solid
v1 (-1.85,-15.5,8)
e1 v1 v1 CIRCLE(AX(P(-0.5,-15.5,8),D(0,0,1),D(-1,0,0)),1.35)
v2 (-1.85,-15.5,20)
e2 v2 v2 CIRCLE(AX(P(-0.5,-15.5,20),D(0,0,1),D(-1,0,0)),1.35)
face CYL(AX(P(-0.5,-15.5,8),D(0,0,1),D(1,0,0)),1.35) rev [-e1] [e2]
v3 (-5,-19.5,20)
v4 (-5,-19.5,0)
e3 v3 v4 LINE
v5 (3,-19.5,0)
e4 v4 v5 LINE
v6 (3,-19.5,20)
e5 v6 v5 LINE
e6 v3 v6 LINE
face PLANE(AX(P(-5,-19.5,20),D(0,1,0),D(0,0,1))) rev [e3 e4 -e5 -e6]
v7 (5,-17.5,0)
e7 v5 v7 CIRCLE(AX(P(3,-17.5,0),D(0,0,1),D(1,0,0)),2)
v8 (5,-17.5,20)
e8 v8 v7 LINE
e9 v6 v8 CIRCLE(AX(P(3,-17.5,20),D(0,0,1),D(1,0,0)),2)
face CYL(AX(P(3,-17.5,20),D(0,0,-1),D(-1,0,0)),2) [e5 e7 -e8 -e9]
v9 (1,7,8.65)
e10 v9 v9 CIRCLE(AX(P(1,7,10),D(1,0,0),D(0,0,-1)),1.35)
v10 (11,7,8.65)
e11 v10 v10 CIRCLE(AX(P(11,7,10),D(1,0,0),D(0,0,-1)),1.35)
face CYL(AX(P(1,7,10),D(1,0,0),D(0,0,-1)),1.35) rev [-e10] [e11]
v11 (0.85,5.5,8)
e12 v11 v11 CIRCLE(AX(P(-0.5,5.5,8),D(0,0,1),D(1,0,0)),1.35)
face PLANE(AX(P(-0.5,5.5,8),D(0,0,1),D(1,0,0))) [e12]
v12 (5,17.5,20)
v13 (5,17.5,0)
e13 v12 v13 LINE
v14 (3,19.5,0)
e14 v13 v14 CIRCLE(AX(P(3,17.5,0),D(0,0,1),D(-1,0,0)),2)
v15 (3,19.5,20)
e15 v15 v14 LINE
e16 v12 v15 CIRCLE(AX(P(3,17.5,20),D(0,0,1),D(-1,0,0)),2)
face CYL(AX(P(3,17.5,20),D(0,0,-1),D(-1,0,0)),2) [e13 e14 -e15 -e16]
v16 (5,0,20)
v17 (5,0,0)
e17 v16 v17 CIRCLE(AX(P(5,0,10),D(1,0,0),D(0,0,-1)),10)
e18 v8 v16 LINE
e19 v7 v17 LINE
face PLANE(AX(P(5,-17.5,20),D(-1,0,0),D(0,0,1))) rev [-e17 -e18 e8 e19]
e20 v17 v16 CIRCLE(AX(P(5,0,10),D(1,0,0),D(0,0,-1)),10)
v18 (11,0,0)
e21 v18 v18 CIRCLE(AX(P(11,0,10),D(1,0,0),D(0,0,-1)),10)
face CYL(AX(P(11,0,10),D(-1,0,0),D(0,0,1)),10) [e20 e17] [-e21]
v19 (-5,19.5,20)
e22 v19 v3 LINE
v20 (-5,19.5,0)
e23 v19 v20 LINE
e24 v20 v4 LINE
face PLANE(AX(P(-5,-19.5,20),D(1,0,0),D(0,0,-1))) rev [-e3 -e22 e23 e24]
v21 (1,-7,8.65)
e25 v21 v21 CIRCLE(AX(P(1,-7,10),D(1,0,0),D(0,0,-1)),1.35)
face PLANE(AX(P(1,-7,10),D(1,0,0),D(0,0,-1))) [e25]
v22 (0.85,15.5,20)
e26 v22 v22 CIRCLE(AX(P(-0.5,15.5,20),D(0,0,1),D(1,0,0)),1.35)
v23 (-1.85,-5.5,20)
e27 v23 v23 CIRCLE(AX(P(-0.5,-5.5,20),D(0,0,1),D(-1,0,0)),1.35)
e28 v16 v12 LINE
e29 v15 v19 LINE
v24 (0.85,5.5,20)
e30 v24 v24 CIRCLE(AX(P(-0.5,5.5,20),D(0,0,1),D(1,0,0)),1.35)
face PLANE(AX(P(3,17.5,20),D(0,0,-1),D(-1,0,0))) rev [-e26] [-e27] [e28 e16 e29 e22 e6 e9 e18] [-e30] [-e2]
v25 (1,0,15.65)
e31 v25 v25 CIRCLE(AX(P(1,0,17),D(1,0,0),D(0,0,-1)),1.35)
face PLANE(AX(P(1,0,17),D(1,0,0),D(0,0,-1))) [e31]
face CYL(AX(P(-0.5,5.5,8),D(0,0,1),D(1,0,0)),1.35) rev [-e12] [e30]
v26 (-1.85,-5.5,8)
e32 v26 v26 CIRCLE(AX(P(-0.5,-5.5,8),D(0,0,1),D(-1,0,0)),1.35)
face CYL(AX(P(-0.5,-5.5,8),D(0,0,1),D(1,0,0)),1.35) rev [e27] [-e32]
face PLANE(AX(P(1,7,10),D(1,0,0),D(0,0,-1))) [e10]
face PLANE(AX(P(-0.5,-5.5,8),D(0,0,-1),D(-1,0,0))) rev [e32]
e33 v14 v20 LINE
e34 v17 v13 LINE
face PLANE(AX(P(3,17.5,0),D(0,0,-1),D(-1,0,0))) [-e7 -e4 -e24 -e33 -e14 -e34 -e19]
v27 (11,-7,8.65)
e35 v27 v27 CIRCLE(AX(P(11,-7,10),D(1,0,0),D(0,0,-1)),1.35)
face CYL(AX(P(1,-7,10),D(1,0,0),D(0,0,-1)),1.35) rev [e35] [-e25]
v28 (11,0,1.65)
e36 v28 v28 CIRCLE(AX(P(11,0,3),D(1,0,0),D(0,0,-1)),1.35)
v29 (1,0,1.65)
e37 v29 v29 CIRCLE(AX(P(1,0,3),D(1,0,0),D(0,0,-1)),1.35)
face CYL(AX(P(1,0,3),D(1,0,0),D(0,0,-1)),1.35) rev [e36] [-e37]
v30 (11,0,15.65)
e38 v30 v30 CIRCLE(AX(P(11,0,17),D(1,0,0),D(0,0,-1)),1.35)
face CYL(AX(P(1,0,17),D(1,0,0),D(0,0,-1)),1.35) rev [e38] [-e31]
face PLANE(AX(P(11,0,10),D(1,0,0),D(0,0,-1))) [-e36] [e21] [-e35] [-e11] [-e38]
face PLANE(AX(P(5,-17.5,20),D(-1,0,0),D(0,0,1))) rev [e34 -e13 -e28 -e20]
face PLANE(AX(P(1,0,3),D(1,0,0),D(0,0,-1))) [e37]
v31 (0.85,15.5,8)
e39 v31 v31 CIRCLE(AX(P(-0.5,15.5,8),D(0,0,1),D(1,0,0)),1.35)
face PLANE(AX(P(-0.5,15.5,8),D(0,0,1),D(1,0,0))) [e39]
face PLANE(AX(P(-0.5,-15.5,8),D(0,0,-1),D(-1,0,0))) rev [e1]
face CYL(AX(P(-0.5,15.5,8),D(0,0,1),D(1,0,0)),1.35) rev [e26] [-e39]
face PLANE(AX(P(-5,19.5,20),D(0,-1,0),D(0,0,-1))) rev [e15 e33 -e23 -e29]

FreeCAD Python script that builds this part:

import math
import FreeCAD as App
import Part
import Sketcher
from FreeCAD import Vector
Q = App.Units.Quantity

doc = App.newDocument("Part")
body = doc.addObject("PartDesign::Body", "Body")

sketch1 = body.newObject("Sketcher::SketchObject", "Sketch")
sketch1.AttachmentSupport = (doc.getObject("XY_Plane"), [""])
sketch1.MapMode = "FlatFace"
sketch1.addGeometry(Part.LineSegment(Vector(-5, -19.5, 0), Vector(3, -19.5, 0)), False)
sketch1.addGeometry(Part.ArcOfCircle(Part.Circle(Vector(3, -17.5, 0), Vector(0, 0, 1), 2), math.radians(-90), math.radians(0)), False)
sketch1.addGeometry(Part.LineSegment(Vector(5, -17.5, 0), Vector(5, 17.5, 0)), False)
sketch1.addGeometry(Part.ArcOfCircle(Part.Circle(Vector(3, 17.5, 0), Vector(0, 0, 1), 2), math.radians(0), math.radians(90)), False)
sketch1.addGeometry(Part.LineSegment(Vector(3, 19.5, 0), Vector(-5, 19.5, 0)), False)
sketch1.addGeometry(Part.LineSegment(Vector(-5, 19.5, 0), Vector(-5, -19.5, 0)), False)
sketch1.addConstraint(Sketcher.Constraint("Tangent", 0, 2, 1, 1))
sketch1.addConstraint(Sketcher.Constraint("Tangent", 1, 2, 2, 1))
sketch1.addConstraint(Sketcher.Constraint("Tangent", 2, 2, 3, 1))
sketch1.addConstraint(Sketcher.Constraint("Tangent", 3, 2, 4, 1))
sketch1.addConstraint(Sketcher.Constraint("Coincident", 4, 2, 5, 1))
sketch1.addConstraint(Sketcher.Constraint("Coincident", 5, 2, 0, 1))
sketch1.addConstraint(Sketcher.Constraint("Horizontal", 0))
sketch1.addConstraint(Sketcher.Constraint("Vertical", 2))
sketch1.addConstraint(Sketcher.Constraint("Horizontal", 4))
sketch1.addConstraint(Sketcher.Constraint("Vertical", 5))
sketch1.addConstraint(Sketcher.Constraint("Equal", 1, 3))
sketch1.addConstraint(Sketcher.Constraint("Radius", 1, Q("2 mm")))
sketch1.addConstraint(Sketcher.Constraint("DistanceX", 0, 1, 0, 2, Q("8 mm")))
sketch1.addConstraint(Sketcher.Constraint("DistanceY", 2, 1, 2, 2, Q("35 mm")))
sketch1.addConstraint(Sketcher.Constraint("DistanceX", -1, 1, 1, 3, Q("3 mm")))
sketch1.addConstraint(Sketcher.Constraint("DistanceY", 1, 3, -1, 1, Q("17.5 mm")))
pad1 = body.newObject("PartDesign::Pad", "Pad")
pad1.Profile = sketch1
pad1.Length = 20

sketch2 = body.newObject("Sketcher::SketchObject", "Sketch001")
sketch2.AttachmentSupport = (doc.getObject("XY_Plane"), [""])
sketch2.MapMode = "FlatFace"
sketch2.AttachmentOffset = App.Placement(Vector(0, 0, 20), App.Rotation())
sketch2.addGeometry(Part.Circle(Vector(-0.5, 15.5, 0), Vector(0, 0, 1), 1.4), False)
sketch2.addGeometry(Part.Circle(Vector(-0.5, 5.5, 0), Vector(0, 0, 1), 1.4), False)
sketch2.addGeometry(Part.Circle(Vector(-0.5, -15.5, 0), Vector(0, 0, 1), 1.4), False)
sketch2.addGeometry(Part.Circle(Vector(-0.5, -5.5, 0), Vector(0, 0, 1), 1.4), False)
sketch2.addConstraint(Sketcher.Constraint("Equal", 0, 1))
sketch2.addConstraint(Sketcher.Constraint("Equal", 1, 2))
sketch2.addConstraint(Sketcher.Constraint("Equal", 2, 3))
sketch2.addConstraint(Sketcher.Constraint("Symmetric", 0, 3, 2, 3, -1))
sketch2.addConstraint(Sketcher.Constraint("Symmetric", 1, 3, 3, 3, -1))
sketch2.addConstraint(Sketcher.Constraint("Vertical", 0, 3, 1, 3))
sketch2.addConstraint(Sketcher.Constraint("Diameter", 0, Q("2.7 mm")))
sketch2.addConstraint(Sketcher.Constraint("DistanceY", 1, 3, 0, 3, Q("10 mm")))
sketch2.addConstraint(Sketcher.Constraint("DistanceY", 2, 3, 1, 3, Q("21 mm")))
sketch2.addConstraint(Sketcher.Constraint("DistanceX", 0, 3, -1, 1, Q("0.5 mm")))
pocket1 = body.newObject("PartDesign::Pocket", "Pocket")
pocket1.Profile = sketch2
pocket1.Length = 12

sketch3 = body.newObject("Sketcher::SketchObject", "Sketch002")
sketch3.AttachmentSupport = (doc.getObject("YZ_Plane"), [""])
sketch3.MapMode = "FlatFace"
sketch3.AttachmentOffset = App.Placement(Vector(0, 0, 5), App.Rotation())
sketch3.addGeometry(Part.Circle(Vector(0, 10, 0), Vector(0, 0, 1), 10), False)
sketch3.addConstraint(Sketcher.Constraint("PointOnObject", 0, 3, -2))
sketch3.addConstraint(Sketcher.Constraint("Diameter", 0, Q("20 mm")))
sketch3.addConstraint(Sketcher.Constraint("DistanceY", -1, 1, 0, 3, Q("10 mm")))
pad2 = body.newObject("PartDesign::Pad", "Pad001")
pad2.Profile = sketch3
pad2.Length = 6

sketch4 = body.newObject("Sketcher::SketchObject", "Sketch003")
sketch4.AttachmentSupport = (doc.getObject("YZ_Plane"), [""])
sketch4.MapMode = "FlatFace"
sketch4.AttachmentOffset = App.Placement(Vector(0, 0, 11), App.Rotation())
sketch4.addGeometry(Part.Circle(Vector(0, 17, 0), Vector(0, 0, 1), 1.4), False)
sketch4.addGeometry(Part.Circle(Vector(7, 10, 0), Vector(0, 0, 1), 1.4), False)
sketch4.addGeometry(Part.Circle(Vector(0, 3, 0), Vector(0, 0, 1), 1.4), False)
sketch4.addGeometry(Part.Circle(Vector(-7, 10, 0), Vector(0, 0, 1), 1.4), False)
sketch4.addConstraint(Sketcher.Constraint("Equal", 0, 1))
sketch4.addConstraint(Sketcher.Constraint("Equal", 1, 2))
sketch4.addConstraint(Sketcher.Constraint("Equal", 2, 3))
sketch4.addConstraint(Sketcher.Constraint("Symmetric", 1, 3, 3, 3, -2))
sketch4.addConstraint(Sketcher.Constraint("PointOnObject", 0, 3, -2))
sketch4.addConstraint(Sketcher.Constraint("PointOnObject", 2, 3, -2))
sketch4.addConstraint(Sketcher.Constraint("Diameter", 0, Q("2.7 mm")))
sketch4.addConstraint(Sketcher.Constraint("DistanceY", -1, 1, 0, 3, Q("17 mm")))
sketch4.addConstraint(Sketcher.Constraint("DistanceX", -1, 1, 1, 3, Q("7 mm")))
sketch4.addConstraint(Sketcher.Constraint("DistanceY", -1, 1, 1, 3, Q("10 mm")))
sketch4.addConstraint(Sketcher.Constraint("DistanceY", -1, 1, 2, 3, Q("3 mm")))
pocket2 = body.newObject("PartDesign::Pocket", "Pocket001")
pocket2.Profile = sketch4
pocket2.Length = 10

doc.recompute()
